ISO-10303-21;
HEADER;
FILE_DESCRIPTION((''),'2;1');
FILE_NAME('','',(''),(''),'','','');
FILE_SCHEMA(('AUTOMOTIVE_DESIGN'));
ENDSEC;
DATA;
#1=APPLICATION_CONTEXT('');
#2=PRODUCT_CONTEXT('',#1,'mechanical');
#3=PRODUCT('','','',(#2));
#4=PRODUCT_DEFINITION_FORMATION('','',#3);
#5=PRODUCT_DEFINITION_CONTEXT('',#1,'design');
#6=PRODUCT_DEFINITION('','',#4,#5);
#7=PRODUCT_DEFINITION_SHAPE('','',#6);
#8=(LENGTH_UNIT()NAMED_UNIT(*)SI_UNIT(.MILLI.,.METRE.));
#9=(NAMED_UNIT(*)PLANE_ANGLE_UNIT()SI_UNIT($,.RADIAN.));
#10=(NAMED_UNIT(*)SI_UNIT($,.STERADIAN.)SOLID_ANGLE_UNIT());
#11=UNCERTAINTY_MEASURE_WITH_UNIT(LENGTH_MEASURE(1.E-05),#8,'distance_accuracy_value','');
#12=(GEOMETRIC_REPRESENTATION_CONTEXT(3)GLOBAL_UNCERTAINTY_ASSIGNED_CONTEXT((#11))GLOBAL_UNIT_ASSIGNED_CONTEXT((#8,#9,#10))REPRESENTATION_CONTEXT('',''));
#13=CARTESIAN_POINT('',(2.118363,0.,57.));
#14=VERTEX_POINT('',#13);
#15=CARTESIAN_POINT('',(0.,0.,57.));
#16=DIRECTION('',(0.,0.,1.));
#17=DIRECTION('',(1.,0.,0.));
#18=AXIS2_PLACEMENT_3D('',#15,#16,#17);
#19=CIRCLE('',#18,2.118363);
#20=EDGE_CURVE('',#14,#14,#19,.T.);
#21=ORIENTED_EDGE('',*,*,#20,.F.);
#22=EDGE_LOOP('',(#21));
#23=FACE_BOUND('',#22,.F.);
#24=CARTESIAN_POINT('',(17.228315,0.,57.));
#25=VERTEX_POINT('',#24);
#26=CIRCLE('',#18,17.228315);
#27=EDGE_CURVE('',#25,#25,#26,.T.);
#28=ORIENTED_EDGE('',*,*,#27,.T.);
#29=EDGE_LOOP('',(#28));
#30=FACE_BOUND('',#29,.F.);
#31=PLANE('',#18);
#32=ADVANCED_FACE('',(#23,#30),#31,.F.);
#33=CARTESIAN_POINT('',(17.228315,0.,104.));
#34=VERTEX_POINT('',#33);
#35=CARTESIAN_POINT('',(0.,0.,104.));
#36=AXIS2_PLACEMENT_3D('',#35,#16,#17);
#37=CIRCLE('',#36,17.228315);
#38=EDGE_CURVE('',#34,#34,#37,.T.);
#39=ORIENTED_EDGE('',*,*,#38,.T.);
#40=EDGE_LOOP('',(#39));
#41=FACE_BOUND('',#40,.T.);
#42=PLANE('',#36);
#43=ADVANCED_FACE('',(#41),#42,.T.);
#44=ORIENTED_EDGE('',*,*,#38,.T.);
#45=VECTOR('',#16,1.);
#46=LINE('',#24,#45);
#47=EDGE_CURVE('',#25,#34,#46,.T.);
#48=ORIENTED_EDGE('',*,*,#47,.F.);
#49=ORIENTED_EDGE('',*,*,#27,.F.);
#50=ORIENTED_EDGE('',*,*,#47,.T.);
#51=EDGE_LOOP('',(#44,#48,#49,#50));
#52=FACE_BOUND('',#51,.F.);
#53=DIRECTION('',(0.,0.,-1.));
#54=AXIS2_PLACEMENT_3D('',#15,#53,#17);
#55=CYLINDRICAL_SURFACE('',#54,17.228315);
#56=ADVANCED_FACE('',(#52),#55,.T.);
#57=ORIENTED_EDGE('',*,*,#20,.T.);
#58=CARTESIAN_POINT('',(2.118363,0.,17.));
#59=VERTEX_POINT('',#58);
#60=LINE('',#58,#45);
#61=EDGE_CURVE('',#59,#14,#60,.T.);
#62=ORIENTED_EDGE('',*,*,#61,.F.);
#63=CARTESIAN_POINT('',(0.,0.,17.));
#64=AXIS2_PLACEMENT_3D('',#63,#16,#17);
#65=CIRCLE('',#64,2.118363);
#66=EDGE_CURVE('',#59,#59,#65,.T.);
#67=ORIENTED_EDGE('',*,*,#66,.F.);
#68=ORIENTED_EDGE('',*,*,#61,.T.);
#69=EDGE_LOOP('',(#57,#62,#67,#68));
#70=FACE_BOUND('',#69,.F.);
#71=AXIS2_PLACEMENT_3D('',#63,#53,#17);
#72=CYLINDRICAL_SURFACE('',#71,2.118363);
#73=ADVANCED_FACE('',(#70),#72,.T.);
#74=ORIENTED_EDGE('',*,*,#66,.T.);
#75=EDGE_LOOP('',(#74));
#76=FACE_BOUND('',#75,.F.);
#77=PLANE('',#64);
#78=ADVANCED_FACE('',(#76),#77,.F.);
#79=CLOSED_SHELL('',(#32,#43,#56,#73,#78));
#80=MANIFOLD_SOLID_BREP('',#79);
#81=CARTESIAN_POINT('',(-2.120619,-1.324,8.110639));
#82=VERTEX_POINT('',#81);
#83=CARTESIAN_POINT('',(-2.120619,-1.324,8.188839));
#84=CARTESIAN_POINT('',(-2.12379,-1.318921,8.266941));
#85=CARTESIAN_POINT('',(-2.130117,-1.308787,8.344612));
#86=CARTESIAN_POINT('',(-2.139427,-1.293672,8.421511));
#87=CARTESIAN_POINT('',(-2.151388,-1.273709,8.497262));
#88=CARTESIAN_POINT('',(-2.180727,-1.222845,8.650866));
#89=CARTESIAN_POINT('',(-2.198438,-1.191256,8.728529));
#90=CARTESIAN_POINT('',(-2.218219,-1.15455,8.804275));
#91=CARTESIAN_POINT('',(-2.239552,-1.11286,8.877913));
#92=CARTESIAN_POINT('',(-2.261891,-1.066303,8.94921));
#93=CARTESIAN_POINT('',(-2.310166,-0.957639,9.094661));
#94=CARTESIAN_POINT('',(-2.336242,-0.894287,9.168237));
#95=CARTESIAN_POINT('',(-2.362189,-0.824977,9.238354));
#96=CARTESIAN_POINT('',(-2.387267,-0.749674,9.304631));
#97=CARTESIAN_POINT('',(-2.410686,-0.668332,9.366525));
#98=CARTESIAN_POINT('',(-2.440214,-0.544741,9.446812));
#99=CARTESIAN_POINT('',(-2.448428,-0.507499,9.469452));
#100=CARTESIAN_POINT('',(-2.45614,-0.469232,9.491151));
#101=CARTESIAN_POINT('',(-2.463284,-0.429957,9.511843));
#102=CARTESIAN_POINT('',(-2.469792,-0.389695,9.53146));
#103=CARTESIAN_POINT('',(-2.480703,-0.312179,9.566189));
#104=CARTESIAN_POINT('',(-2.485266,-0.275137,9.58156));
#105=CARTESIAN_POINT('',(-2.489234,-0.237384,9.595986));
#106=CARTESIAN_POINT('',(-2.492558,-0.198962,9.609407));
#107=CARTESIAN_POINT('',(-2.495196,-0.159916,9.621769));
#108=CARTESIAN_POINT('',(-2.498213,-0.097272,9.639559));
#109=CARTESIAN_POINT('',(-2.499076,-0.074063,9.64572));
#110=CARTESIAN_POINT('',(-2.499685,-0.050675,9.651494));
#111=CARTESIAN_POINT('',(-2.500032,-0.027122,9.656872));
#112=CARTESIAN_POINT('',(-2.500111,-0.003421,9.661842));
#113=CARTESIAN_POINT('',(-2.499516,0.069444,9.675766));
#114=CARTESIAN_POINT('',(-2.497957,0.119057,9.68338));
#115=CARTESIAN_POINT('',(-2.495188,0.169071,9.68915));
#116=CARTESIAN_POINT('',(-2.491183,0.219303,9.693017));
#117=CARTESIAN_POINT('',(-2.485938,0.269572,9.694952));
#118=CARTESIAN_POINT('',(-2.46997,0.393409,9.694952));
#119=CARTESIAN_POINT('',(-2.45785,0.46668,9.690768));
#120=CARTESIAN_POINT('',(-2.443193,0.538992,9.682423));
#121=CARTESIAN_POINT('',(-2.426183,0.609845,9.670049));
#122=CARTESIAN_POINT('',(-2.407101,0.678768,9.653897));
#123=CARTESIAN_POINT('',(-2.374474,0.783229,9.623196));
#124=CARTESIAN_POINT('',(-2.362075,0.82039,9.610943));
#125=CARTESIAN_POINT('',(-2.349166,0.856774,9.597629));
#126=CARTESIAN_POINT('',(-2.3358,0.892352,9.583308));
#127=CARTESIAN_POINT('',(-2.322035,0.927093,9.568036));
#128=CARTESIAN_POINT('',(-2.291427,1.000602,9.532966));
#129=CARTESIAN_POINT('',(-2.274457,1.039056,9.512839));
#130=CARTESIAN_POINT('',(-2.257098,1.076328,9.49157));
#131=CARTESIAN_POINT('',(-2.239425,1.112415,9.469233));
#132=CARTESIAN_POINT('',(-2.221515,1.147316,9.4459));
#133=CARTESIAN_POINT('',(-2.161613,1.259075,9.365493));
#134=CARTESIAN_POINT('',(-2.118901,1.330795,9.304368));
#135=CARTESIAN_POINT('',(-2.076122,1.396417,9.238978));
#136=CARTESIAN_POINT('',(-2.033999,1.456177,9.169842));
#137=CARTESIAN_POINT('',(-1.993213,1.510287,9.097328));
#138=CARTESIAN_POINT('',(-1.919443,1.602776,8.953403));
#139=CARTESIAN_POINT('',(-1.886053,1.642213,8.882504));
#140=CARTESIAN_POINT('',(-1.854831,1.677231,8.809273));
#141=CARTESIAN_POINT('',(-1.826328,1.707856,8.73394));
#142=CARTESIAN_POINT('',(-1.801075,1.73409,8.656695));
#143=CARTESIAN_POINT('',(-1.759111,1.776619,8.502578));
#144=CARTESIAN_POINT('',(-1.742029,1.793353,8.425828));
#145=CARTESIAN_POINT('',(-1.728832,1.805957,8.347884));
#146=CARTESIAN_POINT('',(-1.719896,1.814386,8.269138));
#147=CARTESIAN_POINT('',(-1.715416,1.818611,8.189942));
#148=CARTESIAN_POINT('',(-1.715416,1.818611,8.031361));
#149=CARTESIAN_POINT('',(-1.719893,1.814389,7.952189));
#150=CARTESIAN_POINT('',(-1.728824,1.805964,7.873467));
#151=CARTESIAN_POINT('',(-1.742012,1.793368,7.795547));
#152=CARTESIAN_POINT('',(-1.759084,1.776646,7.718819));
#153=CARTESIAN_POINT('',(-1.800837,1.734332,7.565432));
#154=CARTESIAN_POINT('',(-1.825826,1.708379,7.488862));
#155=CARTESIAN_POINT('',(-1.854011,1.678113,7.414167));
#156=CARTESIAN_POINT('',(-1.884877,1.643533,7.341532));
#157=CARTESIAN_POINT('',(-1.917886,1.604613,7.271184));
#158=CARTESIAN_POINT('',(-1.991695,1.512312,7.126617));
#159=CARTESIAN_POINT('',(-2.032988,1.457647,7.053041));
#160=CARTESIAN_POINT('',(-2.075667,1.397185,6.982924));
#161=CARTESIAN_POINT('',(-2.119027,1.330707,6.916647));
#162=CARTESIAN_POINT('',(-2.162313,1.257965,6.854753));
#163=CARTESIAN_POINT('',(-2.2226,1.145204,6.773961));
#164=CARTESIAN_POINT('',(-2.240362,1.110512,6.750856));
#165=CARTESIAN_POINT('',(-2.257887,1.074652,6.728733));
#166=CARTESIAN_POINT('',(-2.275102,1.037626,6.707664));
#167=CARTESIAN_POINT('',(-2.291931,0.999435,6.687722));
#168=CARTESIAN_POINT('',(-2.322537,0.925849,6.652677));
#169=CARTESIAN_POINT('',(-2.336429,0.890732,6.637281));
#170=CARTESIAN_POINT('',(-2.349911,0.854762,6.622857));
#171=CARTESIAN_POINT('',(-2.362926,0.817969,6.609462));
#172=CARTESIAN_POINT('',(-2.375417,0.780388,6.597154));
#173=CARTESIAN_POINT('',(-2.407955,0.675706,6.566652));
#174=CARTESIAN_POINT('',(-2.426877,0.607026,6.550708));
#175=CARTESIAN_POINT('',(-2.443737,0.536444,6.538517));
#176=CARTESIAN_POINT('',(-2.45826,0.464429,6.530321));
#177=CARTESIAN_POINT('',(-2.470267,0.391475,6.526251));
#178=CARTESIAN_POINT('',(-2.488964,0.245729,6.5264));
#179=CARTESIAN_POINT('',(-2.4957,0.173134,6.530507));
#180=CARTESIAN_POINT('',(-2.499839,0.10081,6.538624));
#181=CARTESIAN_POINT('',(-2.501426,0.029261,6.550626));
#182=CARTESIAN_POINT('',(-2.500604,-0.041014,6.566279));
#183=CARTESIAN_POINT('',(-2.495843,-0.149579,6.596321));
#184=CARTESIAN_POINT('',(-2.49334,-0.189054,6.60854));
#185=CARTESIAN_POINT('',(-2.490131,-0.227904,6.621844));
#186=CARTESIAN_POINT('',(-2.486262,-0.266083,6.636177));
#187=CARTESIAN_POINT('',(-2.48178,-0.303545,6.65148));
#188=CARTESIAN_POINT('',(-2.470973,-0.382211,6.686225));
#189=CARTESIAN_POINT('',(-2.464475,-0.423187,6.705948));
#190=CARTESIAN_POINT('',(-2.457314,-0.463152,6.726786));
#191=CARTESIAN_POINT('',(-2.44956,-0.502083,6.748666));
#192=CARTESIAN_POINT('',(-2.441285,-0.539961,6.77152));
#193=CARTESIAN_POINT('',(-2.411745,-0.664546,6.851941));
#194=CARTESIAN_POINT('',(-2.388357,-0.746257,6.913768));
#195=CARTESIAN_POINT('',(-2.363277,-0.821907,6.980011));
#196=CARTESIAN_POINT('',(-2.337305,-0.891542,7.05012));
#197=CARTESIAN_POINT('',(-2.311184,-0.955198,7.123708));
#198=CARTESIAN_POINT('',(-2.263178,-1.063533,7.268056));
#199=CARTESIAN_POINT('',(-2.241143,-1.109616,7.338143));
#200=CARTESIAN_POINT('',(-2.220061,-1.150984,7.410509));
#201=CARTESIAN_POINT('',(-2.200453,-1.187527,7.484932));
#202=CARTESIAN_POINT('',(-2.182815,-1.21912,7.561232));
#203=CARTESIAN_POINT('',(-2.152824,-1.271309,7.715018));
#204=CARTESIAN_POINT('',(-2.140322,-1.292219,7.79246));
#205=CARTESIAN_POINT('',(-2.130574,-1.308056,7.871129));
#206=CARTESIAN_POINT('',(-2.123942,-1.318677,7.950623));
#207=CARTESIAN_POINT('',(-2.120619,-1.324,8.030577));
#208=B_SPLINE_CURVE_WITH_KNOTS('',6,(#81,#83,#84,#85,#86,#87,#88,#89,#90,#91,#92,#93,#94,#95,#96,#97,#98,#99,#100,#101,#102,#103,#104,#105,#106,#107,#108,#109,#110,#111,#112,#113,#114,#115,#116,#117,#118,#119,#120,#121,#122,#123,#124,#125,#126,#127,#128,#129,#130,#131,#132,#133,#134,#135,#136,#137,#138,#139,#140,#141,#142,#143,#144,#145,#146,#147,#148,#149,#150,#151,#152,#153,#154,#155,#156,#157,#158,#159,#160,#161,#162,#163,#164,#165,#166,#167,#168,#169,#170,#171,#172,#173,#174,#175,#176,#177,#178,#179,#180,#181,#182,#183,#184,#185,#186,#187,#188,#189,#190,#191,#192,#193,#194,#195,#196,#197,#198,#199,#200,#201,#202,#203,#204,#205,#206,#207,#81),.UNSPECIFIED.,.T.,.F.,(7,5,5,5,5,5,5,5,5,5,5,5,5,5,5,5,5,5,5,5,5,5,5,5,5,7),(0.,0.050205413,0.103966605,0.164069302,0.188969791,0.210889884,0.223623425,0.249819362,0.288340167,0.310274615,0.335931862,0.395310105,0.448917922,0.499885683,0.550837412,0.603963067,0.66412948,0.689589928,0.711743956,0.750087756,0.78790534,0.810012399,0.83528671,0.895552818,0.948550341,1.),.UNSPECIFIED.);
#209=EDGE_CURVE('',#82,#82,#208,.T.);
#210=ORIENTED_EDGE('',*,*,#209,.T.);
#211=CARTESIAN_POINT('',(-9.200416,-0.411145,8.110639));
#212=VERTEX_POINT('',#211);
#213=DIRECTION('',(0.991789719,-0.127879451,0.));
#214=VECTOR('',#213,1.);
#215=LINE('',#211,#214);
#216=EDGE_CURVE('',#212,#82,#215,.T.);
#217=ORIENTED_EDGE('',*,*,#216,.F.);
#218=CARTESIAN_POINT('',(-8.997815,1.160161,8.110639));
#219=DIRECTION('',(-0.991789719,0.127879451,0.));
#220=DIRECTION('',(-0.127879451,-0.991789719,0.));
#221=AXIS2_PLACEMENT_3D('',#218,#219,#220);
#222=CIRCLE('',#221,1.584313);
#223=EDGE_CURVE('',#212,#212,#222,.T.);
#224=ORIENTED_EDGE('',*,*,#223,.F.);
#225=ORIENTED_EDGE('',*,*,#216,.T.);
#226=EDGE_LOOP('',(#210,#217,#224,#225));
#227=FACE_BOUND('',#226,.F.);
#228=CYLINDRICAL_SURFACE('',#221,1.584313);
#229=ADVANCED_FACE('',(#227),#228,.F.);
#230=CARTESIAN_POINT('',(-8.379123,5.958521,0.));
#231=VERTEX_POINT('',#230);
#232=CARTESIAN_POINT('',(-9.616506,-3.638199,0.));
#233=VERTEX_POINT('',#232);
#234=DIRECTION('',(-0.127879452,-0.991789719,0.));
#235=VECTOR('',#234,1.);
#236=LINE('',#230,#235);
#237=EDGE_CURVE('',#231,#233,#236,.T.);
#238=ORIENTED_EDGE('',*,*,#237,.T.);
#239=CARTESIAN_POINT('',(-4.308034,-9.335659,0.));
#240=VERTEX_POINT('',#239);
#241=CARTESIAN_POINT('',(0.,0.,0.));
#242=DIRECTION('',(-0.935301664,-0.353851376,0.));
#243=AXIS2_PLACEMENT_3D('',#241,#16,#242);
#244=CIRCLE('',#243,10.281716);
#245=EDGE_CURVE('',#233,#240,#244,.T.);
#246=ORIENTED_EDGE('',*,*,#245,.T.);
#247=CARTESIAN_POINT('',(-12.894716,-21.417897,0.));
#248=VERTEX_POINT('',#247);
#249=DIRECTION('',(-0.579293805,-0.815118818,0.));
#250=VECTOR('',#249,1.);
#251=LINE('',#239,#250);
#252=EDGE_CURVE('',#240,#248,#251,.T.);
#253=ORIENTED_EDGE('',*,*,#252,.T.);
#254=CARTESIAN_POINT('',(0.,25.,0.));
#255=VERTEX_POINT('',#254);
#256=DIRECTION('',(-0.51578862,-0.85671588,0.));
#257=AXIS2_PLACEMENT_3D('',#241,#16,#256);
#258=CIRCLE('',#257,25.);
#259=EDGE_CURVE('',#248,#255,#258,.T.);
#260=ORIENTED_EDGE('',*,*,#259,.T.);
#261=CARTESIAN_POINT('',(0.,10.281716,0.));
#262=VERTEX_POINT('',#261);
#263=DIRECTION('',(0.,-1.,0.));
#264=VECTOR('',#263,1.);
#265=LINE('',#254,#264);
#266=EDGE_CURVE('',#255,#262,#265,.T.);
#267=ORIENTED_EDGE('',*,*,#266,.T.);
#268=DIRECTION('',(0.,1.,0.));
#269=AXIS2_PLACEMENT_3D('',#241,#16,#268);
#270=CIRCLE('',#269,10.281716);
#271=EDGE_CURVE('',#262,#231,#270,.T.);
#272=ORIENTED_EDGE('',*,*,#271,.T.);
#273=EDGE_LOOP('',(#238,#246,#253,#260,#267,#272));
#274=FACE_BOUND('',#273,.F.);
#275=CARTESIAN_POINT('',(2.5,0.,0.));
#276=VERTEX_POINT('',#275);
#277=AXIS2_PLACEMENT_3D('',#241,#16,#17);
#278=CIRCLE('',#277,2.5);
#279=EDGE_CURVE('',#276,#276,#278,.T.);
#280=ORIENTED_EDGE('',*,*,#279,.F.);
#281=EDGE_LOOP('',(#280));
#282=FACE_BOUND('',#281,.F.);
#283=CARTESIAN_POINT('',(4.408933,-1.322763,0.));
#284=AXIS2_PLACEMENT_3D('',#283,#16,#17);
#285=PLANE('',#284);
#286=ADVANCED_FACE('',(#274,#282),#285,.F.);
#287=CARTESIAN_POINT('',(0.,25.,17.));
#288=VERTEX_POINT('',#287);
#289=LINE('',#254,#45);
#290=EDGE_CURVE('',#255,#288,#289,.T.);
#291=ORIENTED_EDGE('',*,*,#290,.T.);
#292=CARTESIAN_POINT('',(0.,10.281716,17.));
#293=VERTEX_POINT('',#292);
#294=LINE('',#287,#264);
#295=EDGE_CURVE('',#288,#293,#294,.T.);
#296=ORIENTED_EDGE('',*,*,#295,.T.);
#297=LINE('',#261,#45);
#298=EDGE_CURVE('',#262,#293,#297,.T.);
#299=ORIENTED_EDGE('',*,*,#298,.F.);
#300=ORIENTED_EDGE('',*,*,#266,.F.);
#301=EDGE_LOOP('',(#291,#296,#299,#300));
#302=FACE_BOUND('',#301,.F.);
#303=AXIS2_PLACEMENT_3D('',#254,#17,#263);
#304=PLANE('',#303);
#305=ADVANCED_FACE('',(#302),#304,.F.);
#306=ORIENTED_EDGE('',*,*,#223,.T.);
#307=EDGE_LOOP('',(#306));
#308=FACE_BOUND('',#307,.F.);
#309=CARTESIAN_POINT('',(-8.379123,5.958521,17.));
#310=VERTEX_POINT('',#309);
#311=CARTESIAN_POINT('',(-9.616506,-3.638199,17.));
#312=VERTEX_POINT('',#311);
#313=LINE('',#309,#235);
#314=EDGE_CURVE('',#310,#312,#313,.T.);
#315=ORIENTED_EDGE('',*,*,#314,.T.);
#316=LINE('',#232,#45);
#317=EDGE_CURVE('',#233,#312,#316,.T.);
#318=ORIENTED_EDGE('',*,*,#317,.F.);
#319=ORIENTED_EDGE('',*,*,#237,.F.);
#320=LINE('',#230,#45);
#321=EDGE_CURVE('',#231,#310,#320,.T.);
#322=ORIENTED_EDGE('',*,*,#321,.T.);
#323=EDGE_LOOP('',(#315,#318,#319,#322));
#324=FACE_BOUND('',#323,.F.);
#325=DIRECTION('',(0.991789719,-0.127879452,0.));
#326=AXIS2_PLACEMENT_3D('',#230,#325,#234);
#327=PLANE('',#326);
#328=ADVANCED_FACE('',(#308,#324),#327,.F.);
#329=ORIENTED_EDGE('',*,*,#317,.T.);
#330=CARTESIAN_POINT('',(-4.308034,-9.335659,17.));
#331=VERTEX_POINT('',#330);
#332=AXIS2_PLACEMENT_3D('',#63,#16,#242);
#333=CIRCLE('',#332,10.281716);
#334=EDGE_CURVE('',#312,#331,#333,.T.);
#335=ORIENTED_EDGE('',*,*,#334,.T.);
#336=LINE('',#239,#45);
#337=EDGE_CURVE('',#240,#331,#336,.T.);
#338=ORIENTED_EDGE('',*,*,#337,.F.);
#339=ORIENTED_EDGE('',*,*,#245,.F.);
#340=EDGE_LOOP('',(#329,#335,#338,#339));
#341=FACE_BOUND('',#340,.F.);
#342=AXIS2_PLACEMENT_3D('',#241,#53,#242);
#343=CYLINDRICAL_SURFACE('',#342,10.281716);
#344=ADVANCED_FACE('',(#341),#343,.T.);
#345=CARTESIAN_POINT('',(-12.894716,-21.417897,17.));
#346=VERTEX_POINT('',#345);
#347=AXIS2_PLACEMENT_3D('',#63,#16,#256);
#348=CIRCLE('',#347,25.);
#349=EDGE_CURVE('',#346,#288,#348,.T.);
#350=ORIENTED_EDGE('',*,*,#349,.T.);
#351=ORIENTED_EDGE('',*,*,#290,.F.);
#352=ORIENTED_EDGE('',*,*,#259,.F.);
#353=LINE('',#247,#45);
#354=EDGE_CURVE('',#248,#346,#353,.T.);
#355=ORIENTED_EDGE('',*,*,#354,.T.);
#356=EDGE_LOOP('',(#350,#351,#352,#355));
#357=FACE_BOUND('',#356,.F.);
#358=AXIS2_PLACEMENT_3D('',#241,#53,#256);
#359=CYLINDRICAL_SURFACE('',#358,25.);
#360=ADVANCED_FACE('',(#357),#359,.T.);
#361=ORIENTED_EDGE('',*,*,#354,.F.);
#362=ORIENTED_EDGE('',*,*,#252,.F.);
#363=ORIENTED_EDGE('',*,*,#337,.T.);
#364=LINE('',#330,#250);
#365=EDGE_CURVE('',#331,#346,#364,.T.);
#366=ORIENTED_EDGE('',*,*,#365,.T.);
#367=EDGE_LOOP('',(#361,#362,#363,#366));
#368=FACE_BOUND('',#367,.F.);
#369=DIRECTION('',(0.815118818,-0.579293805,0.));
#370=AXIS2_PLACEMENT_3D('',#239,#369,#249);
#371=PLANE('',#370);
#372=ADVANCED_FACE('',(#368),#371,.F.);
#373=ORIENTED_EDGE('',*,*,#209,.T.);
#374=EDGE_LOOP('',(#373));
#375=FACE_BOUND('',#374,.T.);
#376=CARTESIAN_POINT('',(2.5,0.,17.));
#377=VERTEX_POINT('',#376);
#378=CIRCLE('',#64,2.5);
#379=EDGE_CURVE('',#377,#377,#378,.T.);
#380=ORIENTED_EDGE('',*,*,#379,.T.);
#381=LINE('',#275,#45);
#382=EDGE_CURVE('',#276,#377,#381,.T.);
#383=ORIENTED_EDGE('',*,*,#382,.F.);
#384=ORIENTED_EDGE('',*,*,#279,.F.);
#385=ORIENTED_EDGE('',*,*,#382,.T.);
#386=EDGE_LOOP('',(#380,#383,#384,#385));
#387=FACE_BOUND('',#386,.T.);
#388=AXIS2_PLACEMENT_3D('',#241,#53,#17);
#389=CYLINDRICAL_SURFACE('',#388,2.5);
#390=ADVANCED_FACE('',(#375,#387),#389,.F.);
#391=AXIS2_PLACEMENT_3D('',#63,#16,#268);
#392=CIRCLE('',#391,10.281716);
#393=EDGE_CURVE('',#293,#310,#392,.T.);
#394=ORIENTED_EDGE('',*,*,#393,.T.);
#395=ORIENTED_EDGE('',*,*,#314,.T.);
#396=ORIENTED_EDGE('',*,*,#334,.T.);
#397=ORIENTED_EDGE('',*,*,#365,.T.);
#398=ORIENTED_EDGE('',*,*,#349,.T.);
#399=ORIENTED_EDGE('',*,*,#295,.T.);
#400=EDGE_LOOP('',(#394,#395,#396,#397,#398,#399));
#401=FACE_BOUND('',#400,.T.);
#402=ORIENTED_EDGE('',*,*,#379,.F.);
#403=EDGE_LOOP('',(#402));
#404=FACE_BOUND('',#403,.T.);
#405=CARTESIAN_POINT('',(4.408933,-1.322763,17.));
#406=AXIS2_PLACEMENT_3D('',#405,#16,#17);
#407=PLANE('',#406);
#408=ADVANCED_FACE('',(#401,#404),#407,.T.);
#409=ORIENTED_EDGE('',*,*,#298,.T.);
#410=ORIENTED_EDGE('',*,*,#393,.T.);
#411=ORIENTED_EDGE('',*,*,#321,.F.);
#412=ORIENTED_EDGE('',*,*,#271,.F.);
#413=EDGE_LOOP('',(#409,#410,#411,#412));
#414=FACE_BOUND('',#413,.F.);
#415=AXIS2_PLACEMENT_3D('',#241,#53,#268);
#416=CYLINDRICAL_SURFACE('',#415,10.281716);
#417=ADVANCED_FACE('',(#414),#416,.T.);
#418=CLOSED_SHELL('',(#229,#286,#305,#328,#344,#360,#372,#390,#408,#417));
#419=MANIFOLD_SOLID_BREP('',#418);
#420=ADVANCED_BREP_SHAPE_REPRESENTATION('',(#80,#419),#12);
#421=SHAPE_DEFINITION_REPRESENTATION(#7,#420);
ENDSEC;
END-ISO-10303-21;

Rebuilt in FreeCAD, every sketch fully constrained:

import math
import FreeCAD as App
import Part
import Sketcher
from FreeCAD import Vector

doc = App.newDocument("Part")
body = doc.addObject("PartDesign::Body", "Body")

sketch1 = body.newObject("Sketcher::SketchObject", "Sketch")
sketch1.AttachmentSupport = (doc.getObject("XY_Plane"), [""])
sketch1.MapMode = "FlatFace"
sketch1.addGeometry([
    Part.LineSegment(Vector(-4.308034, -9.335659, 0), Vector(-12.894716, -21.417897, 0)),
    Part.ArcOfCircle(Part.Circle(Vector(0, 0, 0), Vector(0, 0, 1), 25), math.radians(-121.050182), math.radians(90)),
    Part.LineSegment(Vector(0, 25, 0), Vector(0, 10.281716, 0)),
    Part.ArcOfCircle(Part.Circle(Vector(0, 0, 0), Vector(0, 0, 1), 10.281716), math.radians(90), math.radians(144.582794)),
    Part.LineSegment(Vector(-8.379123, 5.958521, 0), Vector(-9.616506, -3.638199, 0)),
    Part.ArcOfCircle(Part.Circle(Vector(0, 0, 0), Vector(0, 0, 1), 10.281716), math.radians(-159.276936), math.radians(-114.771439)),
    Part.Circle(Vector(0, 0, 0), Vector(0, 0, 1), 2.5),
], False)
sketch1.addConstraint([
    Sketcher.Constraint("Coincident", 0, 2, 1, 1),
    Sketcher.Constraint("Coincident", 1, 2, 2, 1),
    Sketcher.Constraint("Coincident", 2, 2, 3, 1),
    Sketcher.Constraint("Coincident", 3, 2, 4, 1),
    Sketcher.Constraint("Coincident", 4, 2, 5, 1),
    Sketcher.Constraint("Coincident", 5, 2, 0, 1),
    Sketcher.Constraint("Vertical", 2),
    Sketcher.Constraint("Coincident", 1, 3, -1, 1),
    Sketcher.Constraint("Coincident", 3, 3, -1, 1),
    Sketcher.Constraint("Coincident", 5, 3, -1, 1),
    Sketcher.Constraint("Coincident", 6, 3, -1, 1),
    Sketcher.Constraint("Equal", 3, 5),
    Sketcher.Constraint("PointOnObject", 1, 2, -2),
    Sketcher.Constraint("Diameter", 6, 5.0),
    Sketcher.Constraint("Radius", 1, 25.0),
    Sketcher.Constraint("Radius", 3, 10.281716),
    Sketcher.Constraint("DistanceY", 4, 2, -1, 1, 3.638199),
    Sketcher.Constraint("Distance", 0, 14.822671),
    Sketcher.Constraint("DistanceY", -1, 1, 3, 2, 5.958521),
    Sketcher.Constraint("DistanceY", 5, 2, -1, 1, 9.335659),
])
pad1 = body.newObject("PartDesign::Pad", "Pad")
pad1.Profile = sketch1
pad1.Length = 17

sketch2 = body.newObject("Sketcher::SketchObject", "Sketch001")
sketch2.Placement = App.Placement(Vector(-8.997815, 1.160161, 0), App.Rotation(Vector(-0.127879451, -0.991789719, 0), Vector(0, 0, 1.000000001), Vector(-0.991789719, 0.127879451, 0), "ZXY"))
sketch2.addGeometry(Part.Circle(Vector(0, 8.110639, 0), Vector(0, 0, 1), 1.584313), False)
sketch2.addConstraint([
    Sketcher.Constraint("PointOnObject", 0, 3, -2),
    Sketcher.Constraint("Diameter", 0, 3.168627),
    Sketcher.Constraint("DistanceY", -1, 1, 0, 3, 8.110639),
])
pocket1 = body.newObject("PartDesign::Pocket", "Pocket")
pocket1.Profile = sketch2
pocket1.Length = 7.139406
body2 = doc.addObject("PartDesign::Body", "Body001")

sketch3 = body2.newObject("Sketcher::SketchObject", "Sketch002")
sketch3.AttachmentSupport = (doc.getObject("XY_Plane001"), [""])
sketch3.MapMode = "FlatFace"
sketch3.AttachmentOffset = App.Placement(Vector(0, 0, 17), App.Rotation())
sketch3.addGeometry(Part.Circle(Vector(0, 0, 0), Vector(0, 0, 1), 2.118363), False)
sketch3.addConstraint([
    Sketcher.Constraint("Coincident", 0, 3, -1, 1),
    Sketcher.Constraint("Diameter", 0, 4.236726),
])
pad2 = body2.newObject("PartDesign::Pad", "Pad001")
pad2.Profile = sketch3
pad2.Length = 40

sketch4 = body2.newObject("Sketcher::SketchObject", "Sketch003")
sketch4.AttachmentSupport = (doc.getObject("XY_Plane001"), [""])
sketch4.MapMode = "FlatFace"
sketch4.AttachmentOffset = App.Placement(Vector(0, 0, 57), App.Rotation())
sketch4.addGeometry(Part.Circle(Vector(0, 0, 0), Vector(0, 0, 1), 17.228315), False)
sketch4.addConstraint([
    Sketcher.Constraint("Coincident", 0, 3, -1, 1),
    Sketcher.Constraint("Diameter", 0, 34.45663),
])
pad3 = body2.newObject("PartDesign::Pad", "Pad002")
pad3.Profile = sketch4
pad3.Length = 47

doc.recompute()
